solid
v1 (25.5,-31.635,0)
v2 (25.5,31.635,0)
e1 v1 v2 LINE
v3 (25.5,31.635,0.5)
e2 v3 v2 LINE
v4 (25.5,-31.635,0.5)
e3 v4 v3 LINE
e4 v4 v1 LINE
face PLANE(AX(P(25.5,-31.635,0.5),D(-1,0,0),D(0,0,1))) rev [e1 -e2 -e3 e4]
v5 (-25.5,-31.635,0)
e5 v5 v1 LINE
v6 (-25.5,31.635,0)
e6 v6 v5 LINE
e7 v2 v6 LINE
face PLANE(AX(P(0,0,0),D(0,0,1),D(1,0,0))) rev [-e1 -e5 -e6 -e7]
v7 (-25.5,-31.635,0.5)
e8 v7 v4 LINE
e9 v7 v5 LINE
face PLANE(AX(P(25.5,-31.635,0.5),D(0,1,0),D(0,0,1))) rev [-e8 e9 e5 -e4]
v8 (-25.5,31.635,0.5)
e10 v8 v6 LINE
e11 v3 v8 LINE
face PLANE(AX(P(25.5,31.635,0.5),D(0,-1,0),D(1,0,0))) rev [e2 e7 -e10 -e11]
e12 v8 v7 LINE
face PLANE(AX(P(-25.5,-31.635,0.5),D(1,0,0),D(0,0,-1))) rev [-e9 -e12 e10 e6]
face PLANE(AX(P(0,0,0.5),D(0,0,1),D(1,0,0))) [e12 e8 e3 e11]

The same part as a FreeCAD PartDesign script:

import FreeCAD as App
import Part
import Sketcher


def add_polygon(sketch, points):
    """Adds a closed chain of lines whose ends are joined by coincident constraints."""
    first, n = sketch.GeometryCount, len(points)
    for a, b in zip(points, points[1:] + points[:1]):
        sketch.addGeometry(Part.LineSegment(App.Vector(*a, 0), App.Vector(*b, 0)), False)
    for i in range(n):
        sketch.addConstraint(Sketcher.Constraint("Coincident", first + i, 2, first + (i + 1) % n, 1))

doc = App.newDocument("Part")
body = doc.addObject("PartDesign::Body", "Body")

# Sketch on XY plane
sketch1 = body.newObject("Sketcher::SketchObject", "Sketch")
sketch1.AttachmentSupport = (doc.getObject("XY_Plane"), [""])
sketch1.MapMode = "FlatFace"
add_polygon(sketch1, [(-26, 32), (-26, -32), (26, -32), (26, 32)])  # lines 0-3
sketch1.addConstraint([
    Sketcher.Constraint("Vertical", 0),
    Sketcher.Constraint("Horizontal", 1),
    Sketcher.Constraint("Vertical", 2),
    Sketcher.Constraint("Horizontal", 3),
    Sketcher.Constraint("Symmetric", 0, 2, 2, 2, -1, 1),
    Sketcher.Constraint("DistanceX", 1, 1, 1, 2, 51.0),
    Sketcher.Constraint("DistanceY", 0, 2, 0, 1, 63.27),
])
pad1 = body.newObject("PartDesign::Pad", "Pad")
pad1.Profile = sketch1
pad1.Length = 0.5

doc.recompute()
